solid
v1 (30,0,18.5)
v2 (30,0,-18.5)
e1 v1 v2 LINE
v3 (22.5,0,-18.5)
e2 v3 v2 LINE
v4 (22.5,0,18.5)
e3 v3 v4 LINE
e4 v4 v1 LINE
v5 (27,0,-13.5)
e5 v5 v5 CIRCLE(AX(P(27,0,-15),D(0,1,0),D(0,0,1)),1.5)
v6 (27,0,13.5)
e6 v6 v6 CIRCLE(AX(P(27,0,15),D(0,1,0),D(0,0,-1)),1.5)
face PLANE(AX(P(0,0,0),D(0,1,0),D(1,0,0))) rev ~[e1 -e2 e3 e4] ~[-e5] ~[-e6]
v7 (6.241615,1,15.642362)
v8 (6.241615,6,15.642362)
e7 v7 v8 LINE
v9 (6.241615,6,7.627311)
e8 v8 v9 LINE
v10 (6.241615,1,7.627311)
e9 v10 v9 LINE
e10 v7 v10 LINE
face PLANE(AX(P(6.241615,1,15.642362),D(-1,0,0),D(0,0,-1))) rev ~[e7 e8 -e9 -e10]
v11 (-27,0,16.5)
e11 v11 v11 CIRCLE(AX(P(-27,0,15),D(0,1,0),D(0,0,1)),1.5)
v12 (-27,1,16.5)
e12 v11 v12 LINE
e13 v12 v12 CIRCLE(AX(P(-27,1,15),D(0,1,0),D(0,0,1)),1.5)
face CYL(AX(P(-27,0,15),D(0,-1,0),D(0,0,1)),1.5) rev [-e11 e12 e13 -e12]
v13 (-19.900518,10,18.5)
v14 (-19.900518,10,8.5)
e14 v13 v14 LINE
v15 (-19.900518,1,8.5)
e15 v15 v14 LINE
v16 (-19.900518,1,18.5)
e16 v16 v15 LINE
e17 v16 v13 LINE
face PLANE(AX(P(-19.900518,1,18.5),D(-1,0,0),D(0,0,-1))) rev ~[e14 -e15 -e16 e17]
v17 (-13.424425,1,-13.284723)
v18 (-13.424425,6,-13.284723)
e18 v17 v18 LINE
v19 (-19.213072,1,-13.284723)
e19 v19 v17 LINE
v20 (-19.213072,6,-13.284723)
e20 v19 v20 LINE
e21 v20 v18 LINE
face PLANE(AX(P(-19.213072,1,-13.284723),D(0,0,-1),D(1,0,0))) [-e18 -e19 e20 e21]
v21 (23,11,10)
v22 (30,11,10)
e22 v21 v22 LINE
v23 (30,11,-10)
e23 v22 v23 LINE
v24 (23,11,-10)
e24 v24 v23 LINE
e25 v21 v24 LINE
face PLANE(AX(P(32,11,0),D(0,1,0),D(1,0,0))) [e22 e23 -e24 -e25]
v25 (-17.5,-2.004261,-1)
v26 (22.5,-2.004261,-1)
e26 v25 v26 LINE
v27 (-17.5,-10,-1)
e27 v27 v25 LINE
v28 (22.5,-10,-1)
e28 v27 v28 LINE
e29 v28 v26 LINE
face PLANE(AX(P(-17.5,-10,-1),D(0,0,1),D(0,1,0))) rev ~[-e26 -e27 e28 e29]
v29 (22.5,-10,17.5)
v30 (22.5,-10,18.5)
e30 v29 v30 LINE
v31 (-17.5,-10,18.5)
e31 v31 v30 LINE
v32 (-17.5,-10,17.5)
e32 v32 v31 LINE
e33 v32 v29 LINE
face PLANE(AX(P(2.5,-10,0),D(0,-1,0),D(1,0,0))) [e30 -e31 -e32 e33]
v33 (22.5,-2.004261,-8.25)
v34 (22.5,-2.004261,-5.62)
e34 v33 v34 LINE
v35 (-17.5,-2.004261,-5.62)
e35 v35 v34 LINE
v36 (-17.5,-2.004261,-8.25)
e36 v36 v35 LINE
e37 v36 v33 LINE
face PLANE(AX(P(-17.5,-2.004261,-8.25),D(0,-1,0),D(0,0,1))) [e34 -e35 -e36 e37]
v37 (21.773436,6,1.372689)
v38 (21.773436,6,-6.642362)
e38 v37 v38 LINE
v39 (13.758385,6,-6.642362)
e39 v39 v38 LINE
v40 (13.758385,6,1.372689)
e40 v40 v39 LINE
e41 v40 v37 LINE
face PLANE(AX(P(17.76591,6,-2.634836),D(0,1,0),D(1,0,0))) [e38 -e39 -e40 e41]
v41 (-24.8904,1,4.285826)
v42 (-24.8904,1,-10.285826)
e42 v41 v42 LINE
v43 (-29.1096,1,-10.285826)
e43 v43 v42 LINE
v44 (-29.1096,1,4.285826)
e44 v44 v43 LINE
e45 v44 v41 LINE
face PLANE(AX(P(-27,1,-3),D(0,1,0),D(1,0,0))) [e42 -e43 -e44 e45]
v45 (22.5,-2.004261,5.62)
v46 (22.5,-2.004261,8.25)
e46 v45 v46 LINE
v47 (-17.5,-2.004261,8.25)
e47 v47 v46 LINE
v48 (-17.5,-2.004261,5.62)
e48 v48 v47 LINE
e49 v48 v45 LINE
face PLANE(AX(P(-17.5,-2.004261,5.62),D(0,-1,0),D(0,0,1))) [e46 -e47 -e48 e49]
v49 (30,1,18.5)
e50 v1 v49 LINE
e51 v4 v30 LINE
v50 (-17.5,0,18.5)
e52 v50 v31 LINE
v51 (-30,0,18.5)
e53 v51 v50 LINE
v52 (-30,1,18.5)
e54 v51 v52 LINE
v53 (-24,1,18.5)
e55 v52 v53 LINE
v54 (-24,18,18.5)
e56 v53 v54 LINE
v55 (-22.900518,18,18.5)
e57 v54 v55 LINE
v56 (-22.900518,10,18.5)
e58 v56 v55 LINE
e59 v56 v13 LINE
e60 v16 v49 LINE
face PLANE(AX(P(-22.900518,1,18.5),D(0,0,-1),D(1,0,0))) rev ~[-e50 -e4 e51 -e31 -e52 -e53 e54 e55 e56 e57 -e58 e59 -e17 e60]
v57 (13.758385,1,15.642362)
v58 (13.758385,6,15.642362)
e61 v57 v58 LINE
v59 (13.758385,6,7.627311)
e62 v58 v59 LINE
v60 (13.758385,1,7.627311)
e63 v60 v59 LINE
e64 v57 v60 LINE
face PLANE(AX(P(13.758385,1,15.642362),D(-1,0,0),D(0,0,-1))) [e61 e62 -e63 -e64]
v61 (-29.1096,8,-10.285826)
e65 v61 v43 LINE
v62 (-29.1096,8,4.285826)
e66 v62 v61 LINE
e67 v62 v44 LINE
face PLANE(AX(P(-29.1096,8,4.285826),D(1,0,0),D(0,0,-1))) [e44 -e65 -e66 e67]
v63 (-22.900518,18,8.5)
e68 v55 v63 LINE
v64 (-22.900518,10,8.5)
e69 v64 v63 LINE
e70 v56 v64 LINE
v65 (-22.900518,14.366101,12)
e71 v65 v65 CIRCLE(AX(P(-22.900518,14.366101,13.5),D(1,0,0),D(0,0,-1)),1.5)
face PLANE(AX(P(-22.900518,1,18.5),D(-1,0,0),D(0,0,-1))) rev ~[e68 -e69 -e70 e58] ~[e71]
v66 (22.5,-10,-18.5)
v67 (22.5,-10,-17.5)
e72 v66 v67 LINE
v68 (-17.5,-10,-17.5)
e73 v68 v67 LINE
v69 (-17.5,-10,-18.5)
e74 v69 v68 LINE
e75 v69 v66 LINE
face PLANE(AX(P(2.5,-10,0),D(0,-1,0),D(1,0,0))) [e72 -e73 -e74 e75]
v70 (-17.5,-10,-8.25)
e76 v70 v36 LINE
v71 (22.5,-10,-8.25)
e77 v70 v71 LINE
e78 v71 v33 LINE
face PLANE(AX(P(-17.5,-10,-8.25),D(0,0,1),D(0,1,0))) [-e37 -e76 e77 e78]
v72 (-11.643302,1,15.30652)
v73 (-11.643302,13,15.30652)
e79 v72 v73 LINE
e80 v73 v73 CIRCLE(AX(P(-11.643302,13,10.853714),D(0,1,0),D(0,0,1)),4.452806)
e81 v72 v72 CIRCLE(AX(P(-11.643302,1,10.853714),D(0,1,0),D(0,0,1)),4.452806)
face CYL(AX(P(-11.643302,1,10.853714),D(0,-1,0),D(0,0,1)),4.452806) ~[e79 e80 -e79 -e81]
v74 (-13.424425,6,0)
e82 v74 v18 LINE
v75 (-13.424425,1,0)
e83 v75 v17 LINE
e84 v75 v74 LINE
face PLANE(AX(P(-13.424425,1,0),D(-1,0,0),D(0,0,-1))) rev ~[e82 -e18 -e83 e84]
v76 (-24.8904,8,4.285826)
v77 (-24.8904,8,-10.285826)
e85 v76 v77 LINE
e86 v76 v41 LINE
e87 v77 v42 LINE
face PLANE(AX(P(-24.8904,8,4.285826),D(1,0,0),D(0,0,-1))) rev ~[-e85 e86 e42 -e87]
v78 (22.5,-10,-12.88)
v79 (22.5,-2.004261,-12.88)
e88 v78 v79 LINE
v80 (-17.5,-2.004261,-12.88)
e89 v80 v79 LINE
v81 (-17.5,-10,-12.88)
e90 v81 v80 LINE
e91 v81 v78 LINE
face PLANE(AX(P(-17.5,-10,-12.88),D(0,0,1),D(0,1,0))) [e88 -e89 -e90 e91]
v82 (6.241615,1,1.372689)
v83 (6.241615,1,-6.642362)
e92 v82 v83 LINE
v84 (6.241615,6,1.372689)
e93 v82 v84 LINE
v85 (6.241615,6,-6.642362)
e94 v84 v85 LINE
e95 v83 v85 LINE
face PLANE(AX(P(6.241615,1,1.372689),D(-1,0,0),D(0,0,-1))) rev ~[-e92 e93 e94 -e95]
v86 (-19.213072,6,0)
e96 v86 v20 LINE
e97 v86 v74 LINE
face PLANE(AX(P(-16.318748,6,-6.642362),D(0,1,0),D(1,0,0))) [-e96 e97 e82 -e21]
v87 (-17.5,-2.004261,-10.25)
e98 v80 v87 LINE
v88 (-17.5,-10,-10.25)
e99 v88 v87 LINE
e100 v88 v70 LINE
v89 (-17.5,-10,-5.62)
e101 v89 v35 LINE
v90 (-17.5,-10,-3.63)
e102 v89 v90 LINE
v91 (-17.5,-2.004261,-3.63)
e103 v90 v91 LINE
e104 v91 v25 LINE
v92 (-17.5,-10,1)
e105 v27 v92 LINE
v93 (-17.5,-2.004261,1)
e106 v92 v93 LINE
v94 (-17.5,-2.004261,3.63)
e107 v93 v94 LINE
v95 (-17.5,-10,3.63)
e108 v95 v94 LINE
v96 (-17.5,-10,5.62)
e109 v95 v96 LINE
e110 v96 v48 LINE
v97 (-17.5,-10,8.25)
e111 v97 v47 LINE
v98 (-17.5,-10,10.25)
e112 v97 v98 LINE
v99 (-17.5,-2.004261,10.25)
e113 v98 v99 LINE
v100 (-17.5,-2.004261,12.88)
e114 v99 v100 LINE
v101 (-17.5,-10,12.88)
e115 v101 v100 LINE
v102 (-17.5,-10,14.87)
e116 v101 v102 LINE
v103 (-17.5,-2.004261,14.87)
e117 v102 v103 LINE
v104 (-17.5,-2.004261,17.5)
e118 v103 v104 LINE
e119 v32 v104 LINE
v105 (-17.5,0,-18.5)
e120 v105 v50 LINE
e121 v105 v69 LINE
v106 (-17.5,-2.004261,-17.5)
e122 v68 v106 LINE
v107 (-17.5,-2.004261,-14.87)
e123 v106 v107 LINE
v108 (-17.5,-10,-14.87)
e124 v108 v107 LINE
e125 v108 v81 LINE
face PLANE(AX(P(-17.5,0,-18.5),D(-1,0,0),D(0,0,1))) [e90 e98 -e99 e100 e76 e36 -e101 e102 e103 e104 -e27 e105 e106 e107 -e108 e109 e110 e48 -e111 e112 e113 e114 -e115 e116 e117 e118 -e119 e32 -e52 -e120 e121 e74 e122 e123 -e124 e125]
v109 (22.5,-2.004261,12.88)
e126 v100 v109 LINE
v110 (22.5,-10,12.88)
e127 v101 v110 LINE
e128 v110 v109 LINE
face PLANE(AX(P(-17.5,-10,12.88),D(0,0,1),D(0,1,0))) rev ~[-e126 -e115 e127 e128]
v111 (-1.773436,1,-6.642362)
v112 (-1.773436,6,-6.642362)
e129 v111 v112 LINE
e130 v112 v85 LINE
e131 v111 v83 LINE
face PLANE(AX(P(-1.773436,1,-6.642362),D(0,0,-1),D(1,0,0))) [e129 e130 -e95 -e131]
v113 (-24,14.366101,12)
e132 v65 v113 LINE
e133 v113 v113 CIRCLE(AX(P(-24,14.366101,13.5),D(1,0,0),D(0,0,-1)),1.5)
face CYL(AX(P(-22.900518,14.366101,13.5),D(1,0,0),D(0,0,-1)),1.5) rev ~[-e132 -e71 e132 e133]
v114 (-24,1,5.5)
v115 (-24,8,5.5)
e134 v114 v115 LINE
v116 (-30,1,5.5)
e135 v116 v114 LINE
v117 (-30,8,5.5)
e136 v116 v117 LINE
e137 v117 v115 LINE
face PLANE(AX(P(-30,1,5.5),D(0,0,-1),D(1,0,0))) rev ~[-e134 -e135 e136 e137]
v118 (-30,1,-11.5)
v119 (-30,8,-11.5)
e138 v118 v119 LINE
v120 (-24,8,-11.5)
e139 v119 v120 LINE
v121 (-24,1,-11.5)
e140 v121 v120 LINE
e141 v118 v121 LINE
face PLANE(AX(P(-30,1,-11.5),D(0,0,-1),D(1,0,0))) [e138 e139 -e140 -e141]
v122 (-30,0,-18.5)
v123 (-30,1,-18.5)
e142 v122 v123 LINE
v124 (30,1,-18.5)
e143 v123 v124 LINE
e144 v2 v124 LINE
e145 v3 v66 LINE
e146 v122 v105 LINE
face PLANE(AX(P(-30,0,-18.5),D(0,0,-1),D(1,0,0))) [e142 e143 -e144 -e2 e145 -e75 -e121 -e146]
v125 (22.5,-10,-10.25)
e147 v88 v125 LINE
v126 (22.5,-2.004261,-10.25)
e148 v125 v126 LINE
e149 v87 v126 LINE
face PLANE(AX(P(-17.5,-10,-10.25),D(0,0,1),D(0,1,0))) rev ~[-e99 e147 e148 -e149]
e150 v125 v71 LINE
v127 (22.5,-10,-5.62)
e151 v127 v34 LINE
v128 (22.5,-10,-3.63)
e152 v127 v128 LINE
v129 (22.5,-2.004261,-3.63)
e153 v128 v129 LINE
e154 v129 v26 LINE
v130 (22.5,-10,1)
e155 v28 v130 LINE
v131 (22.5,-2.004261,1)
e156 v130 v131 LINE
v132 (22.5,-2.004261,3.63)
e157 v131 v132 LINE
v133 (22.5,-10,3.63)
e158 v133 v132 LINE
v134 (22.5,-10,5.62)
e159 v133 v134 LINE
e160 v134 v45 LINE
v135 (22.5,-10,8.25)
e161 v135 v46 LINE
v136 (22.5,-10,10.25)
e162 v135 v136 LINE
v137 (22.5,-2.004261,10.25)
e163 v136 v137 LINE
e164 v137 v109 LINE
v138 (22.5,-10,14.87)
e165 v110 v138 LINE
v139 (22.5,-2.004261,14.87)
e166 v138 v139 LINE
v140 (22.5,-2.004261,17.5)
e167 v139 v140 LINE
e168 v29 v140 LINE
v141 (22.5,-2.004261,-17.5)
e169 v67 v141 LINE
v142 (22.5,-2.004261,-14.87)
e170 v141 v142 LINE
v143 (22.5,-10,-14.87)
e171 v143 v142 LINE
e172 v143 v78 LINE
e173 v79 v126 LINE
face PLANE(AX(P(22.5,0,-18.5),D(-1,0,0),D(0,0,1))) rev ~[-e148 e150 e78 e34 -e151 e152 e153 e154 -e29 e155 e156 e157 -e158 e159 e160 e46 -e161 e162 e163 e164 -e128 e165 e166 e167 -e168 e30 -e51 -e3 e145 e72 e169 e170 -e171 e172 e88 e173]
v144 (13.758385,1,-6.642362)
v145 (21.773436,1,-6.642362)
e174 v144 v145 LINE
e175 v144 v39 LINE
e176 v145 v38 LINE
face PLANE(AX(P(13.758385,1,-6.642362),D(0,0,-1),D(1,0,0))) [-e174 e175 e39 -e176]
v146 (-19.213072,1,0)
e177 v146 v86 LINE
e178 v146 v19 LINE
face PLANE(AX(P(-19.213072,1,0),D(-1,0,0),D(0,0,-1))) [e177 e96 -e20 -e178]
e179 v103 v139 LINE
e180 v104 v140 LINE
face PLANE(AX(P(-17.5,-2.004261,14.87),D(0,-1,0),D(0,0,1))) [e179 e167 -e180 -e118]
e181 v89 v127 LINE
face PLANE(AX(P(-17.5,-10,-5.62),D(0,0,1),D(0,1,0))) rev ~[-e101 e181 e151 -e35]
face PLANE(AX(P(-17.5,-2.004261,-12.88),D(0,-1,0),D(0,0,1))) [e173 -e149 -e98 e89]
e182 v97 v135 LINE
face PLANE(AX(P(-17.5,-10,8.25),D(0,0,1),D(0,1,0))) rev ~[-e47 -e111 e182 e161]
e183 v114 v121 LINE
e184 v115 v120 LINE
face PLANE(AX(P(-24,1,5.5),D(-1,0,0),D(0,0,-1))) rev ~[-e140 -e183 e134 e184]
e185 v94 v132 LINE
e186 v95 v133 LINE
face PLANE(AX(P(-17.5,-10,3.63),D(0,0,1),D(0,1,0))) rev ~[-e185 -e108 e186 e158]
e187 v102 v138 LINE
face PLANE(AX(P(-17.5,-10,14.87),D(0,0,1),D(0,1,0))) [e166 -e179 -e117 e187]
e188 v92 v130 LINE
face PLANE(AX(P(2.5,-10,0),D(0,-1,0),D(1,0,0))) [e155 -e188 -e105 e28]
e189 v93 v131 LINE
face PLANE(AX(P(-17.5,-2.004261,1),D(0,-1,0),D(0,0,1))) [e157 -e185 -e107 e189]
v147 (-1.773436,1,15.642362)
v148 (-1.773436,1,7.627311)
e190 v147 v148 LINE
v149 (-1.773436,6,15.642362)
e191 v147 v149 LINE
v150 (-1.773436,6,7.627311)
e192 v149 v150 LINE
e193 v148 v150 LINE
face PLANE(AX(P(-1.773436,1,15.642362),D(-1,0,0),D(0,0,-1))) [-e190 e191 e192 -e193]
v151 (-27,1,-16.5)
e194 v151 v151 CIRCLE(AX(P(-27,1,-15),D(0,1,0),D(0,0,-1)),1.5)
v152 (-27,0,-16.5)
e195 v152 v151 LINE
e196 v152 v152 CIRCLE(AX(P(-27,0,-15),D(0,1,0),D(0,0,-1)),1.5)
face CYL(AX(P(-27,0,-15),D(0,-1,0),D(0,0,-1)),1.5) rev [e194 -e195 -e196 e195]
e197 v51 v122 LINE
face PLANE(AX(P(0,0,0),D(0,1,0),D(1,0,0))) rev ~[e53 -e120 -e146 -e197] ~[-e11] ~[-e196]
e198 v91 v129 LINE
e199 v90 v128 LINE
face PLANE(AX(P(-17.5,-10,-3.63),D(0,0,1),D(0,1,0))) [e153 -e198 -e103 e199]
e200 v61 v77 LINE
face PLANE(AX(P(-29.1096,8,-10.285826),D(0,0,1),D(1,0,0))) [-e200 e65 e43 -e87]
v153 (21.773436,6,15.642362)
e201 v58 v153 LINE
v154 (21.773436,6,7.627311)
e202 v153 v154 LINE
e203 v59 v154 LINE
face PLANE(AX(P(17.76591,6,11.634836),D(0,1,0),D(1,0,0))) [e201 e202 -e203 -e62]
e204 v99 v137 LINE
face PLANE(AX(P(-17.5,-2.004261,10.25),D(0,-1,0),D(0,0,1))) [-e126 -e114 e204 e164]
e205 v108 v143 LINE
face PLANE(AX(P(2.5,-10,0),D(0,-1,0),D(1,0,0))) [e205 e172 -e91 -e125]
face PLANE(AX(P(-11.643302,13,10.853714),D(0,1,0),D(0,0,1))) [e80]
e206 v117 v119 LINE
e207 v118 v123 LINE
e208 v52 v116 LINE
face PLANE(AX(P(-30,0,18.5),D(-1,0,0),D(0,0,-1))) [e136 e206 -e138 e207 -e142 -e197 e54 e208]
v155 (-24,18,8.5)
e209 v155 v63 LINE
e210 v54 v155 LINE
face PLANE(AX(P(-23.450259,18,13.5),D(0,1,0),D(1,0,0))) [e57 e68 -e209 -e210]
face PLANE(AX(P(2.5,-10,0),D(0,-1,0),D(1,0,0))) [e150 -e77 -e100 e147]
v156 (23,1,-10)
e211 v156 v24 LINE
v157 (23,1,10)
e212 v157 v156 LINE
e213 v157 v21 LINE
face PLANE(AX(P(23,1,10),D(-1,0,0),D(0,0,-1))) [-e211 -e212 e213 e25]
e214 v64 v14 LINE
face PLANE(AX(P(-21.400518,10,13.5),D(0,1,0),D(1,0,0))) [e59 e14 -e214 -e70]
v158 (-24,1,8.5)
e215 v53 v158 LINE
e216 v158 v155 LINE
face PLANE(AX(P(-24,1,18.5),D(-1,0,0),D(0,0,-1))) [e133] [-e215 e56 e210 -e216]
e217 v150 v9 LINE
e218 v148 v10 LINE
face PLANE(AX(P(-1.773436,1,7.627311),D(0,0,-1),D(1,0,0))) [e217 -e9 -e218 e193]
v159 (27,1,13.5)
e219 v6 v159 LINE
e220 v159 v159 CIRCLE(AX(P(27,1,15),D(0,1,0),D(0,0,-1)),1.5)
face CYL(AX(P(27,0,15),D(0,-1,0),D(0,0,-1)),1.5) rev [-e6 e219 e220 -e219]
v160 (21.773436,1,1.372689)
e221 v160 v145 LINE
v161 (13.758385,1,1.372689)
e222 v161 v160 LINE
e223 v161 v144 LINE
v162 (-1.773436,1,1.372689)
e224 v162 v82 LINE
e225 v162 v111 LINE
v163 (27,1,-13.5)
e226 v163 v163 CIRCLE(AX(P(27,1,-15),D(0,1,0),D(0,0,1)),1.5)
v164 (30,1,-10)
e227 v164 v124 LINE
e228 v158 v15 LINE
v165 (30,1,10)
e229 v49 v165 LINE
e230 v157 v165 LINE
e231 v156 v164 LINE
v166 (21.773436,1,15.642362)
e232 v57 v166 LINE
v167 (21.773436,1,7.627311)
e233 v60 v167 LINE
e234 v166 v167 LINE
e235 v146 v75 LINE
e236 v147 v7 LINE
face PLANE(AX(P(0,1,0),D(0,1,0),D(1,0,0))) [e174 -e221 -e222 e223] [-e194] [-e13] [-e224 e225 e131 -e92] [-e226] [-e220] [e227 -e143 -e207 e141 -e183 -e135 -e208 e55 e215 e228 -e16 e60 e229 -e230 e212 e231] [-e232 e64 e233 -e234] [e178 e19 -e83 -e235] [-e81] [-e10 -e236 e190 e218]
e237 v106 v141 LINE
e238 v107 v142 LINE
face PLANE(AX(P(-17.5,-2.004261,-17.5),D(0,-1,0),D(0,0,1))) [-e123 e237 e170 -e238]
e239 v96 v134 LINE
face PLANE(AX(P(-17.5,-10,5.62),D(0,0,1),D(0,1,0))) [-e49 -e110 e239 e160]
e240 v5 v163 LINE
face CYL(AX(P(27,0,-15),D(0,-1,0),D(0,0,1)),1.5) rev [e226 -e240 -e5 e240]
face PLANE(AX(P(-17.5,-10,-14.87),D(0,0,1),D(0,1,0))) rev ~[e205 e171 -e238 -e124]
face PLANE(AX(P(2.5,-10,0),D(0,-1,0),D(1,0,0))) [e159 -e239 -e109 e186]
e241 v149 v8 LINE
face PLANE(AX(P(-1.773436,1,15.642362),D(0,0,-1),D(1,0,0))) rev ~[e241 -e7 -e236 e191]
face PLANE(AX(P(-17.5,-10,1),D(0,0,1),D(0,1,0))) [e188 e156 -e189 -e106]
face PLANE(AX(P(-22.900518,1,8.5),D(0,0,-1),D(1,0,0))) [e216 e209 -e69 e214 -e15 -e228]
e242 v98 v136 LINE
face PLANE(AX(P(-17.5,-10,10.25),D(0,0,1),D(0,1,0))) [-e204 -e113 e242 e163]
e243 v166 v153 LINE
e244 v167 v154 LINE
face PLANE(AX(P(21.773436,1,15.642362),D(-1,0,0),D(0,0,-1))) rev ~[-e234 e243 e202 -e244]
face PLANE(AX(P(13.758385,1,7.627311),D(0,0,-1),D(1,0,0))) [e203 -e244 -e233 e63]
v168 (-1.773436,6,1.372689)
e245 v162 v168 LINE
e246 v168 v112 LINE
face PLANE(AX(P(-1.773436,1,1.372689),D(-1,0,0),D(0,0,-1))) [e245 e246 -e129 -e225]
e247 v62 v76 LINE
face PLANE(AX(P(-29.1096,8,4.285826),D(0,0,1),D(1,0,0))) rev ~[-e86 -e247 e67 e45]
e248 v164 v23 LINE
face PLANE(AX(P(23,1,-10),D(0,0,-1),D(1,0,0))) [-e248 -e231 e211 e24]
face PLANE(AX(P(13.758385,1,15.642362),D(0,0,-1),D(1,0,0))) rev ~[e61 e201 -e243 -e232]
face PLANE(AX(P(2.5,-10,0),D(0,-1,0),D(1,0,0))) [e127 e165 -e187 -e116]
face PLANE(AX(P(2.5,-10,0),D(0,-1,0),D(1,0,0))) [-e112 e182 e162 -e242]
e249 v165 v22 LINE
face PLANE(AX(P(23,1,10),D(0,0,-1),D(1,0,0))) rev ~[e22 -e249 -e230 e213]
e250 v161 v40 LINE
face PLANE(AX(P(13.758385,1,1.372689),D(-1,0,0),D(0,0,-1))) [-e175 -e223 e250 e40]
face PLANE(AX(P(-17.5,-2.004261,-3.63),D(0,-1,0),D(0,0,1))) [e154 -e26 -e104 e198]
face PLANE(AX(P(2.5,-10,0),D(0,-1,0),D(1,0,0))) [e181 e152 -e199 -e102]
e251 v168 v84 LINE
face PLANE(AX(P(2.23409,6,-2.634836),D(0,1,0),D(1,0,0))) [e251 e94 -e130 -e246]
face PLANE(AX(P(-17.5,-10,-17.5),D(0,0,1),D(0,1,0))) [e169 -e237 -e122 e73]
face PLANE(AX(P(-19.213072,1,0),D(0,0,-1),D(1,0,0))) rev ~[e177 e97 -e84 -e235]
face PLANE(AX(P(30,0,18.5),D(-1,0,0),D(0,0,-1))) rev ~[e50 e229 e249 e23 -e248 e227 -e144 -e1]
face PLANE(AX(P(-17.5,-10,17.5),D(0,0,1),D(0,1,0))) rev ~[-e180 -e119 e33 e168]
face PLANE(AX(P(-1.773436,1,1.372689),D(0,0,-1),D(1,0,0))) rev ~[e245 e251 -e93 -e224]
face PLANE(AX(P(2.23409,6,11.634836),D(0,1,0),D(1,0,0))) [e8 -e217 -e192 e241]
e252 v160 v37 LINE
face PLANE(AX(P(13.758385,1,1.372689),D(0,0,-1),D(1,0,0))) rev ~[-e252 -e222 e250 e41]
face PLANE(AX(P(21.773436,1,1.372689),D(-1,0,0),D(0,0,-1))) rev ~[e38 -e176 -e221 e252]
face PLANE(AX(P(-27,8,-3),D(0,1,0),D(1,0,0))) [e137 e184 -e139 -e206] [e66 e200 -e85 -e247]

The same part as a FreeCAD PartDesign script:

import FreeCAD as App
import Part
import Sketcher
from FreeCAD import Vector
Q = App.Units.Quantity


def add_polygon(sketch, points):
    """Adds a closed chain of lines whose ends are joined by coincident constraints."""
    first, n = sketch.GeometryCount, len(points)
    for a, b in zip(points, points[1:] + points[:1]):
        sketch.addGeometry(Part.LineSegment(App.Vector(*a, 0), App.Vector(*b, 0)), False)
    for i in range(n):
        sketch.addConstraint(Sketcher.Constraint("Coincident", first + i, 2, first + (i + 1) % n, 1))

doc = App.newDocument("Part")
body = doc.addObject("PartDesign::Body", "Body")

sketch1 = body.newObject("Sketcher::SketchObject", "Sketch")
sketch1.AttachmentSupport = (doc.getObject("XZ_Plane"), [""])
sketch1.MapMode = "FlatFace"
add_polygon(sketch1, [(-30, -18.5), (-30, 18.5), (30, 18.5), (30, -18.5)])
sketch1.addGeometry(Part.Circle(Vector(-27, 15, 0), Vector(0, 0, 1), 1.5), False)
sketch1.addGeometry(Part.Circle(Vector(27, 15, 0), Vector(0, 0, 1), 1.5), False)
sketch1.addGeometry(Part.Circle(Vector(-27, -15, 0), Vector(0, 0, 1), 1.5), False)
sketch1.addGeometry(Part.Circle(Vector(27, -15, 0), Vector(0, 0, 1), 1.5), False)
sketch1.addConstraint(Sketcher.Constraint("Vertical", 0))
sketch1.addConstraint(Sketcher.Constraint("Horizontal", 1))
sketch1.addConstraint(Sketcher.Constraint("Vertical", 2))
sketch1.addConstraint(Sketcher.Constraint("Horizontal", 3))
sketch1.addConstraint(Sketcher.Constraint("Equal", 4, 5))
sketch1.addConstraint(Sketcher.Constraint("Equal", 5, 6))
sketch1.addConstraint(Sketcher.Constraint("Equal", 6, 7))
sketch1.addConstraint(Sketcher.Constraint("Symmetric", 5, 3, 6, 3, -1, 1))
sketch1.addConstraint(Sketcher.Constraint("Symmetric", 4, 3, 7, 3, -1, 1))
sketch1.addConstraint(Sketcher.Constraint("Symmetric", 0, 2, 2, 2, -1, 1))
sketch1.addConstraint(Sketcher.Constraint("Symmetric", 4, 3, 5, 3, -2))
sketch1.addConstraint(Sketcher.Constraint("Diameter", 4, Q("3 mm")))
sketch1.addConstraint(Sketcher.Constraint("DistanceX", 1, 1, 1, 2, Q("60 mm")))
sketch1.addConstraint(Sketcher.Constraint("DistanceY", 0, 1, 0, 2, Q("37 mm")))
sketch1.addConstraint(Sketcher.Constraint("DistanceX", 4, 3, -1, 1, Q("27 mm")))
sketch1.addConstraint(Sketcher.Constraint("DistanceY", -1, 1, 4, 3, Q("15 mm")))
pad1 = body.newObject("PartDesign::Pad", "Pad")
pad1.Profile = sketch1
pad1.Length = 1
pad1.Reversed = True

sketch2 = body.newObject("Sketcher::SketchObject", "Sketch001")
sketch2.AttachmentSupport = (doc.getObject("XZ_Plane"), [""])
sketch2.MapMode = "FlatFace"
sketch2.AttachmentOffset = App.Placement(Vector(0, 0, -1), App.Rotation())
add_polygon(sketch2, [(23, -10), (23, 10), (41, 10), (41, -10)])
sketch2.addConstraint(Sketcher.Constraint("Vertical", 0))
sketch2.addConstraint(Sketcher.Constraint("Horizontal", 1))
sketch2.addConstraint(Sketcher.Constraint("Vertical", 2))
sketch2.addConstraint(Sketcher.Constraint("Horizontal", 3))
sketch2.addConstraint(Sketcher.Constraint("DistanceX", 1, 1, 1, 2, Q("18 mm")))
sketch2.addConstraint(Sketcher.Constraint("DistanceY", 0, 1, 0, 2, Q("20 mm")))
sketch2.addConstraint(Sketcher.Constraint("DistanceX", -1, 1, 0, 2, Q("23 mm")))
sketch2.addConstraint(Sketcher.Constraint("DistanceY", -1, 1, 0, 2, Q("10 mm")))
pad2 = body.newObject("PartDesign::Pad", "Pad001")
pad2.Profile = sketch2
pad2.Length = 10
pad2.Reversed = True

sketch3 = body.newObject("Sketcher::SketchObject", "Sketch002")
sketch3.AttachmentSupport = (doc.getObject("XZ_Plane"), [""])
sketch3.MapMode = "FlatFace"
sketch3.AttachmentOffset = App.Placement(Vector(0, 0, -11), App.Rotation())
sketch3.addGeometry(Part.Circle(Vector(38.562083, -7.5, 0), Vector(0, 0, 1), 1), False)
sketch3.addGeometry(Part.Circle(Vector(38.562083, -2.5, 0), Vector(0, 0, 1), 1), False)
sketch3.addGeometry(Part.Circle(Vector(38.562083, 7.5, 0), Vector(0, 0, 1), 1), False)
sketch3.addGeometry(Part.Circle(Vector(38.562083, 2.5, 0), Vector(0, 0, 1), 1), False)
sketch3.addConstraint(Sketcher.Constraint("Equal", 0, 1))
sketch3.addConstraint(Sketcher.Constraint("Equal", 1, 2))
sketch3.addConstraint(Sketcher.Constraint("Equal", 2, 3))
sketch3.addConstraint(Sketcher.Constraint("Symmetric", 0, 3, 2, 3, -1))
sketch3.addConstraint(Sketcher.Constraint("Symmetric", 1, 3, 3, 3, -1))
sketch3.addConstraint(Sketcher.Constraint("Vertical", 0, 3, 1, 3))
sketch3.addConstraint(Sketcher.Constraint("Diameter", 0, Q("2 mm")))
sketch3.addConstraint(Sketcher.Constraint("DistanceY", 0, 3, 1, 3, Q("5 mm")))
sketch3.addConstraint(Sketcher.Constraint("DistanceY", 1, 3, 2, 3, Q("10 mm")))
sketch3.addConstraint(Sketcher.Constraint("DistanceX", -1, 1, 0, 3, Q("38.562083 mm")))
pocket1 = body.newObject("PartDesign::Pocket", "Pocket")
pocket1.Profile = sketch3
pocket1.Length = 1
pocket1.Reversed = True

sketch4 = body.newObject("Sketcher::SketchObject", "Sketch003")
sketch4.AttachmentSupport = (doc.getObject("YZ_Plane"), [""])
sketch4.MapMode = "FlatFace"
sketch4.AttachmentOffset = App.Placement(Vector(0, 0, 41), App.Rotation())
add_polygon(sketch4, [(5.64503, 3.444655), (1.816244, 3.444655), (1.816244, 1.555345), (5.64503, 1.555345)])
add_polygon(sketch4, [(5.64503, 8.444655), (1.816244, 8.444655), (1.816244, 6.555345), (5.64503, 6.555345)])
add_polygon(sketch4, [(5.64503, -1.555345), (1.816244, -1.555345), (1.816244, -3.444655), (5.64503, -3.444655)])
add_polygon(sketch4, [(5.64503, -6.555345), (1.816244, -6.555345), (1.816244, -8.444655), (5.64503, -8.444655)])
sketch4.addConstraint(Sketcher.Constraint("Horizontal", 0))
sketch4.addConstraint(Sketcher.Constraint("Vertical", 1))
sketch4.addConstraint(Sketcher.Constraint("Horizontal", 2))
sketch4.addConstraint(Sketcher.Constraint("Vertical", 3))
sketch4.addConstraint(Sketcher.Constraint("Horizontal", 4))
sketch4.addConstraint(Sketcher.Constraint("Vertical", 5))
sketch4.addConstraint(Sketcher.Constraint("Horizontal", 6))
sketch4.addConstraint(Sketcher.Constraint("Vertical", 7))
sketch4.addConstraint(Sketcher.Constraint("Horizontal", 8))
sketch4.addConstraint(Sketcher.Constraint("Vertical", 9))
sketch4.addConstraint(Sketcher.Constraint("Horizontal", 10))
sketch4.addConstraint(Sketcher.Constraint("Vertical", 11))
sketch4.addConstraint(Sketcher.Constraint("Horizontal", 12))
sketch4.addConstraint(Sketcher.Constraint("Vertical", 13))
sketch4.addConstraint(Sketcher.Constraint("Horizontal", 14))
sketch4.addConstraint(Sketcher.Constraint("Vertical", 15))
sketch4.addConstraint(Sketcher.Constraint("Symmetric", 1, 2, 8, 2, -1))
sketch4.addConstraint(Sketcher.Constraint("Symmetric", 3, 2, 10, 2, -1))
sketch4.addConstraint(Sketcher.Constraint("Symmetric", 5, 2, 12, 2, -1))
sketch4.addConstraint(Sketcher.Constraint("Symmetric", 7, 2, 14, 2, -1))
sketch4.addConstraint(Sketcher.Constraint("Vertical", 1, 2, 4, 2))
sketch4.addConstraint(Sketcher.Constraint("Vertical", 3, 2, 6, 2))
sketch4.addConstraint(Sketcher.Constraint("Equal", 3, 5))
sketch4.addConstraint(Sketcher.Constraint("DistanceY", 0, 2, 4, 2, Q("5 mm")))
sketch4.addConstraint(Sketcher.Constraint("DistanceY", 8, 2, 0, 2, Q("5 mm")))
sketch4.addConstraint(Sketcher.Constraint("DistanceY", 1, 2, 1, 1, Q("1.889309 mm")))
sketch4.addConstraint(Sketcher.Constraint("DistanceX", 0, 2, 0, 1, Q("3.828786 mm")))
sketch4.addConstraint(Sketcher.Constraint("DistanceX", -1, 1, 2, 2, Q("5.64503 mm")))
pocket2 = body.newObject("PartDesign::Pocket", "Pocket001")
pocket2.Profile = sketch4
pocket2.Length = 5

sketch5 = body.newObject("Sketcher::SketchObject", "Sketch004")
sketch5.AttachmentSupport = (doc.getObject("XZ_Plane"), [""])
sketch5.MapMode = "FlatFace"
sketch5.AttachmentOffset = App.Placement(Vector(0, 0, -1), App.Rotation())
add_polygon(sketch5, [(-30, -11.5), (-30, 5.5), (-24, 5.5), (-24, -11.5)])
sketch5.addConstraint(Sketcher.Constraint("Vertical", 0))
sketch5.addConstraint(Sketcher.Constraint("Horizontal", 1))
sketch5.addConstraint(Sketcher.Constraint("Vertical", 2))
sketch5.addConstraint(Sketcher.Constraint("Horizontal", 3))
sketch5.addConstraint(Sketcher.Constraint("DistanceX", 1, 1, 1, 2, Q("6 mm")))
sketch5.addConstraint(Sketcher.Constraint("DistanceY", 0, 1, 0, 2, Q("17 mm")))
sketch5.addConstraint(Sketcher.Constraint("DistanceX", 0, 2, -1, 1, Q("30 mm")))
sketch5.addConstraint(Sketcher.Constraint("DistanceY", -1, 1, 0, 2, Q("5.5 mm")))
pad3 = body.newObject("PartDesign::Pad", "Pad002")
pad3.Profile = sketch5
pad3.Length = 7
pad3.Reversed = True

sketch6 = body.newObject("Sketcher::SketchObject", "Sketch005")
sketch6.AttachmentSupport = (doc.getObject("XZ_Plane"), [""])
sketch6.MapMode = "FlatFace"
sketch6.AttachmentOffset = App.Placement(Vector(0, 0, -8), App.Rotation())
add_polygon(sketch6, [(-29.1096, -10.285826), (-29.1096, 4.285826), (-24.8904, 4.285826), (-24.8904, -10.285826)])
sketch6.addConstraint(Sketcher.Constraint("Vertical", 0))
sketch6.addConstraint(Sketcher.Constraint("Horizontal", 1))
sketch6.addConstraint(Sketcher.Constraint("Vertical", 2))
sketch6.addConstraint(Sketcher.Constraint("Horizontal", 3))
sketch6.addConstraint(Sketcher.Constraint("DistanceX", 1, 1, 1, 2, Q("4.219201 mm")))
sketch6.addConstraint(Sketcher.Constraint("DistanceY", 0, 1, 0, 2, Q("14.571651 mm")))
sketch6.addConstraint(Sketcher.Constraint("DistanceX", 0, 2, -1, 1, Q("29.1096 mm")))
sketch6.addConstraint(Sketcher.Constraint("DistanceY", -1, 1, 0, 2, Q("4.285826 mm")))
pocket3 = body.newObject("PartDesign::Pocket", "Pocket002")
pocket3.Profile = sketch6
pocket3.Length = 7
pocket3.Reversed = True

sketch7 = body.newObject("Sketcher::SketchObject", "Sketch006")
sketch7.AttachmentSupport = (doc.getObject("XZ_Plane"), [""])
sketch7.MapMode = "FlatFace"
sketch7.AttachmentOffset = App.Placement(Vector(0, 0, -1), App.Rotation())
add_polygon(sketch7, [(-24, 8.5), (-24, 18.5), (-22.900518, 18.5), (-22.900518, 8.5)])
sketch7.addConstraint(Sketcher.Constraint("Vertical", 0))
sketch7.addConstraint(Sketcher.Constraint("Horizontal", 1))
sketch7.addConstraint(Sketcher.Constraint("Vertical", 2))
sketch7.addConstraint(Sketcher.Constraint("Horizontal", 3))
sketch7.addConstraint(Sketcher.Constraint("DistanceY", 0, 1, 0, 2, Q("10 mm")))
sketch7.addConstraint(Sketcher.Constraint("DistanceX", 0, 2, -1, 1, Q("24 mm")))
sketch7.addConstraint(Sketcher.Constraint("DistanceY", -1, 1, 0, 2, Q("18.5 mm")))
sketch7.addConstraint(Sketcher.Constraint("DistanceX", 1, 1, 1, 2, Q("1.099482 mm")))
pad4 = body.newObject("PartDesign::Pad", "Pad003")
pad4.Profile = sketch7
pad4.Length = 17
pad4.Reversed = True

sketch8 = body.newObject("Sketcher::SketchObject", "Sketch007")
sketch8.AttachmentSupport = (doc.getObject("XZ_Plane"), [""])
sketch8.MapMode = "FlatFace"
sketch8.AttachmentOffset = App.Placement(Vector(0, 0, -1), App.Rotation())
add_polygon(sketch8, [(-22.900518, 8.5), (-22.900518, 18.5), (-19.900518, 18.5), (-19.900518, 8.5)])
sketch8.addConstraint(Sketcher.Constraint("Vertical", 0))
sketch8.addConstraint(Sketcher.Constraint("Horizontal", 1))
sketch8.addConstraint(Sketcher.Constraint("Vertical", 2))
sketch8.addConstraint(Sketcher.Constraint("Horizontal", 3))
sketch8.addConstraint(Sketcher.Constraint("DistanceX", 1, 1, 1, 2, Q("3 mm")))
sketch8.addConstraint(Sketcher.Constraint("DistanceY", 0, 1, 0, 2, Q("10 mm")))
sketch8.addConstraint(Sketcher.Constraint("DistanceY", -1, 1, 0, 2, Q("18.5 mm")))
sketch8.addConstraint(Sketcher.Constraint("DistanceX", 0, 2, -1, 1, Q("22.900518 mm")))
pad5 = body.newObject("PartDesign::Pad", "Pad004")
pad5.Profile = sketch8
pad5.Length = 9
pad5.Reversed = True

sketch9 = body.newObject("Sketcher::SketchObject", "Sketch008")
sketch9.AttachmentSupport = (doc.getObject("YZ_Plane"), [""])
sketch9.MapMode = "FlatFace"
sketch9.AttachmentOffset = App.Placement(Vector(0, 0, -22.900518), App.Rotation())
sketch9.addGeometry(Part.Circle(Vector(14.366101, 13.5, 0), Vector(0, 0, 1), 1.5), False)
sketch9.addConstraint(Sketcher.Constraint("Diameter", 0, Q("3 mm")))
sketch9.addConstraint(Sketcher.Constraint("DistanceY", -1, 1, 0, 3, Q("13.5 mm")))
sketch9.addConstraint(Sketcher.Constraint("DistanceX", -1, 1, 0, 3, Q("14.366101 mm")))
pocket4 = body.newObject("PartDesign::Pocket", "Pocket003")
pocket4.Profile = sketch9
pocket4.Length = 9

sketch10 = body.newObject("Sketcher::SketchObject", "Sketch009")
sketch10.AttachmentSupport = (doc.getObject("XZ_Plane"), [""])
sketch10.MapMode = "FlatFace"
sketch10.AttachmentOffset = App.Placement(Vector(0, 0, -1), App.Rotation())
add_polygon(sketch10, [(-1.773436, -6.642362), (-1.773436, 1.372689), (6.241615, 1.372689), (6.241615, -6.642362)])
add_polygon(sketch10, [(-19.213072, -13.284723), (-19.213072, 0), (-13.424425, 0), (-13.424425, -13.284723)])
add_polygon(sketch10, [(13.758385, -6.642362), (13.758385, 1.372689), (21.773436, 1.372689), (21.773436, -6.642362)])
add_polygon(sketch10, [(13.758385, 7.627311), (13.758385, 15.642362), (21.773436, 15.642362), (21.773436, 7.627311)])
add_polygon(sketch10, [(-1.773436, 7.627311), (-1.773436, 15.642362), (6.241615, 15.642362), (6.241615, 7.627311)])
sketch10.addConstraint(Sketcher.Constraint("Vertical", 0))
sketch10.addConstraint(Sketcher.Constraint("Horizontal", 1))
sketch10.addConstraint(Sketcher.Constraint("Vertical", 2))
sketch10.addConstraint(Sketcher.Constraint("Horizontal", 3))
sketch10.addConstraint(Sketcher.Constraint("Vertical", 4))
sketch10.addConstraint(Sketcher.Constraint("Horizontal", 5))
sketch10.addConstraint(Sketcher.Constraint("Vertical", 6))
sketch10.addConstraint(Sketcher.Constraint("Horizontal", 7))
sketch10.addConstraint(Sketcher.Constraint("Vertical", 8))
sketch10.addConstraint(Sketcher.Constraint("Horizontal", 9))
sketch10.addConstraint(Sketcher.Constraint("Vertical", 10))
sketch10.addConstraint(Sketcher.Constraint("Horizontal", 11))
sketch10.addConstraint(Sketcher.Constraint("Vertical", 12))
sketch10.addConstraint(Sketcher.Constraint("Horizontal", 13))
sketch10.addConstraint(Sketcher.Constraint("Vertical", 14))
sketch10.addConstraint(Sketcher.Constraint("Horizontal", 15))
sketch10.addConstraint(Sketcher.Constraint("Vertical", 16))
sketch10.addConstraint(Sketcher.Constraint("Horizontal", 17))
sketch10.addConstraint(Sketcher.Constraint("Vertical", 18))
sketch10.addConstraint(Sketcher.Constraint("Horizontal", 19))
sketch10.addConstraint(Sketcher.Constraint("PointOnObject", 4, 2, -1))
sketch10.addConstraint(Sketcher.Constraint("Horizontal", 1, 2, 8, 2))
sketch10.addConstraint(Sketcher.Constraint("Horizontal", 3, 2, 10, 2))
sketch10.addConstraint(Sketcher.Constraint("Horizontal", 13, 2, 16, 2))
sketch10.addConstraint(Sketcher.Constraint("Horizontal", 15, 2, 18, 2))
sketch10.addConstraint(Sketcher.Constraint("Vertical", 11, 2, 12, 2))
sketch10.addConstraint(Sketcher.Constraint("Vertical", 10, 2, 13, 2))
sketch10.addConstraint(Sketcher.Constraint("Vertical", 3, 2, 16, 2))
sketch10.addConstraint(Sketcher.Constraint("Vertical", 2, 2, 17, 2))
sketch10.addConstraint(Sketcher.Constraint("Equal", 3, 9))
sketch10.addConstraint(Sketcher.Constraint("Equal", 19, 0))
sketch10.addConstraint(Sketcher.Constraint("Equal", 10, 12))
sketch10.addConstraint(Sketcher.Constraint("DistanceX", 1, 1, 1, 2, Q("8.01505 mm")))
sketch10.addConstraint(Sketcher.Constraint("DistanceX", 5, 1, 5, 2, Q("5.788648 mm")))
sketch10.addConstraint(Sketcher.Constraint("DistanceY", 4, 1, 4, 2, Q("13.284723 mm")))
sketch10.addConstraint(Sketcher.Constraint("DistanceY", -1, 1, 0, 2, Q("1.372689 mm")))
sketch10.addConstraint(Sketcher.Constraint("DistanceY", -1, 1, 12, 2, Q("15.642362 mm")))
sketch10.addConstraint(Sketcher.Constraint("DistanceX", 5, 2, 0, 2, Q("11.650989 mm")))
sketch10.addConstraint(Sketcher.Constraint("DistanceX", 1, 2, 8, 2, Q("7.51677 mm")))
sketch10.addConstraint(Sketcher.Constraint("DistanceX", 0, 2, -1, 1, Q("1.773436 mm")))
pad6 = body.newObject("PartDesign::Pad", "Pad005")
pad6.Profile = sketch10
pad6.Length = 5
pad6.Reversed = True

sketch11 = body.newObject("Sketcher::SketchObject", "Sketch010")
sketch11.AttachmentSupport = (doc.getObject("XZ_Plane"), [""])
sketch11.MapMode = "FlatFace"
sketch11.AttachmentOffset = App.Placement(Vector(0, 0, -1), App.Rotation())
sketch11.addGeometry(Part.Circle(Vector(-11.643302, 10.853714, 0), Vector(0, 0, 1), 4.452806), False)
sketch11.addConstraint(Sketcher.Constraint("Diameter", 0, Q("8.905612 mm")))
sketch11.addConstraint(Sketcher.Constraint("DistanceX", 0, 3, -1, 1, Q("11.643302 mm")))
sketch11.addConstraint(Sketcher.Constraint("DistanceY", -1, 1, 0, 3, Q("10.853714 mm")))
pad7 = body.newObject("PartDesign::Pad", "Pad006")
pad7.Profile = sketch11
pad7.Length = 12
pad7.Reversed = True

sketch12 = body.newObject("Sketcher::SketchObject", "Sketch011")
sketch12.AttachmentSupport = (doc.getObject("XZ_Plane"), [""])
sketch12.MapMode = "FlatFace"
add_polygon(sketch12, [(-17.5, 18.5), (-17.5, -18.5), (22.5, -18.5), (22.5, 18.5)])
sketch12.addConstraint(Sketcher.Constraint("Vertical", 0))
sketch12.addConstraint(Sketcher.Constraint("Horizontal", 1))
sketch12.addConstraint(Sketcher.Constraint("Vertical", 2))
sketch12.addConstraint(Sketcher.Constraint("Horizontal", 3))
sketch12.addConstraint(Sketcher.Constraint("DistanceX", 1, 1, 1, 2, Q("40 mm")))
sketch12.addConstraint(Sketcher.Constraint("DistanceY", 0, 2, 0, 1, Q("37 mm")))
sketch12.addConstraint(Sketcher.Constraint("DistanceX", 0, 2, -1, 1, Q("17.5 mm")))
sketch12.addConstraint(Sketcher.Constraint("DistanceY", 0, 2, -1, 1, Q("18.5 mm")))
pad8 = body.newObject("PartDesign::Pad", "Pad007")
pad8.Profile = sketch12
pad8.Length = 10

sketch13 = body.newObject("Sketcher::SketchObject", "Sketch012")
sketch13.AttachmentSupport = (doc.getObject("YZ_Plane"), [""])
sketch13.MapMode = "FlatFace"
sketch13.AttachmentOffset = App.Placement(Vector(0, 0, -17.5), App.Rotation())
add_polygon(sketch13, [(-2.004261, -17.5), (-10, -17.5), (-10, -14.87), (-2.004261, -14.87)])
add_polygon(sketch13, [(-2.004261, -12.88), (-10, -12.88), (-10, -10.25), (-2.004261, -10.25)])
add_polygon(sketch13, [(-2.004261, -8.25), (-10, -8.25), (-10, -5.62), (-2.004261, -5.62)])
add_polygon(sketch13, [(-2.004261, -3.63), (-10, -3.63), (-10, -1), (-2.004261, -1)])
add_polygon(sketch13, [(-2.004261, 1), (-10, 1), (-10, 3.63), (-2.004261, 3.63)])
add_polygon(sketch13, [(-2.004261, 5.62), (-10, 5.62), (-10, 8.25), (-2.004261, 8.25)])
add_polygon(sketch13, [(-2.004261, 10.25), (-10, 10.25), (-10, 12.88), (-2.004261, 12.88)])
add_polygon(sketch13, [(-2.004261, 14.87), (-10, 14.87), (-10, 17.5), (-2.004261, 17.5)])
sketch13.addConstraint(Sketcher.Constraint("Horizontal", 0))
sketch13.addConstraint(Sketcher.Constraint("Vertical", 1))
sketch13.addConstraint(Sketcher.Constraint("Horizontal", 2))
sketch13.addConstraint(Sketcher.Constraint("Vertical", 3))
sketch13.addConstraint(Sketcher.Constraint("Horizontal", 4))
sketch13.addConstraint(Sketcher.Constraint("Vertical", 5))
sketch13.addConstraint(Sketcher.Constraint("Horizontal", 6))
sketch13.addConstraint(Sketcher.Constraint("Vertical", 7))
sketch13.addConstraint(Sketcher.Constraint("Horizontal", 8))
sketch13.addConstraint(Sketcher.Constraint("Vertical", 9))
sketch13.addConstraint(Sketcher.Constraint("Horizontal", 10))
sketch13.addConstraint(Sketcher.Constraint("Vertical", 11))
sketch13.addConstraint(Sketcher.Constraint("Horizontal", 12))
sketch13.addConstraint(Sketcher.Constraint("Vertical", 13))
sketch13.addConstraint(Sketcher.Constraint("Horizontal", 14))
sketch13.addConstraint(Sketcher.Constraint("Vertical", 15))
sketch13.addConstraint(Sketcher.Constraint("Horizontal", 16))
sketch13.addConstraint(Sketcher.Constraint("Vertical", 17))
sketch13.addConstraint(Sketcher.Constraint("Horizontal", 18))
sketch13.addConstraint(Sketcher.Constraint("Vertical", 19))
sketch13.addConstraint(Sketcher.Constraint("Horizontal", 20))
sketch13.addConstraint(Sketcher.Constraint("Vertical", 21))
sketch13.addConstraint(Sketcher.Constraint("Horizontal", 22))
sketch13.addConstraint(Sketcher.Constraint("Vertical", 23))
sketch13.addConstraint(Sketcher.Constraint("Horizontal", 24))
sketch13.addConstraint(Sketcher.Constraint("Vertical", 25))
sketch13.addConstraint(Sketcher.Constraint("Horizontal", 26))
sketch13.addConstraint(Sketcher.Constraint("Vertical", 27))
sketch13.addConstraint(Sketcher.Constraint("Horizontal", 28))
sketch13.addConstraint(Sketcher.Constraint("Vertical", 29))
sketch13.addConstraint(Sketcher.Constraint("Horizontal", 30))
sketch13.addConstraint(Sketcher.Constraint("Vertical", 31))
sketch13.addConstraint(Sketcher.Constraint("Symmetric", 13, 2, 16, 2, -1))
sketch13.addConstraint(Sketcher.Constraint("Symmetric", 15, 2, 18, 2, -1))
sketch13.addConstraint(Sketcher.Constraint("Symmetric", 9, 2, 20, 2, -1))
sketch13.addConstraint(Sketcher.Constraint("Symmetric", 11, 2, 22, 2, -1))
sketch13.addConstraint(Sketcher.Constraint("Symmetric", 5, 2, 24, 2, -1))
sketch13.addConstraint(Sketcher.Constraint("Symmetric", 7, 2, 26, 2, -1))
sketch13.addConstraint(Sketcher.Constraint("Symmetric", 1, 2, 28, 2, -1))
sketch13.addConstraint(Sketcher.Constraint("Symmetric", 3, 2, 30, 2, -1))
sketch13.addConstraint(Sketcher.Constraint("Vertical", 1, 2, 4, 2))
sketch13.addConstraint(Sketcher.Constraint("Vertical", 3, 2, 6, 2))
sketch13.addConstraint(Sketcher.Constraint("Vertical", 5, 2, 8, 2))
sketch13.addConstraint(Sketcher.Constraint("Vertical", 7, 2, 10, 2))
sketch13.addConstraint(Sketcher.Constraint("Vertical", 9, 2, 12, 2))
sketch13.addConstraint(Sketcher.Constraint("Vertical", 11, 2, 14, 2))
sketch13.addConstraint(Sketcher.Constraint("Equal", 3, 5))
sketch13.addConstraint(Sketcher.Constraint("Equal", 7, 9))
sketch13.addConstraint(Sketcher.Constraint("Equal", 11, 13))
sketch13.addConstraint(Sketcher.Constraint("DistanceX", 0, 2, -1, 1, Q("10 mm")))
sketch13.addConstraint(Sketcher.Constraint("DistanceY", 13, 2, -1, 1, Q("1 mm")))
sketch13.addConstraint(Sketcher.Constraint("DistanceY", 5, 2, 8, 2, Q("2 mm")))
sketch13.addConstraint(Sketcher.Constraint("DistanceY", 1, 1, 1, 2, Q("2.63 mm")))
sketch13.addConstraint(Sketcher.Constraint("DistanceY", 0, 2, -1, 1, Q("17.5 mm")))
sketch13.addConstraint(Sketcher.Constraint("DistanceY", 4, 2, -1, 1, Q("12.88 mm")))
sketch13.addConstraint(Sketcher.Constraint("DistanceX", 0, 2, 0, 1, Q("7.995739 mm")))
pocket5 = body.newObject("PartDesign::Pocket", "Pocket004")
pocket5.Profile = sketch13
pocket5.Type = "ThroughAll"
pocket5.Reversed = True

sketch14 = body.newObject("Sketcher::SketchObject", "Sketch013")
sketch14.AttachmentSupport = (doc.getObject("XZ_Plane"), [""])
sketch14.MapMode = "FlatFace"
add_polygon(sketch14, [(30, 10), (30, -10), (41, -10), (41, 10)])
sketch14.addConstraint(Sketcher.Constraint("Vertical", 0))
sketch14.addConstraint(Sketcher.Constraint("Horizontal", 1))
sketch14.addConstraint(Sketcher.Constraint("Vertical", 2))
sketch14.addConstraint(Sketcher.Constraint("Horizontal", 3))
sketch14.addConstraint(Sketcher.Constraint("DistanceX", 1, 1, 1, 2, Q("11 mm")))
sketch14.addConstraint(Sketcher.Constraint("DistanceY", 0, 2, 0, 1, Q("20 mm")))
sketch14.addConstraint(Sketcher.Constraint("DistanceX", -1, 1, 0, 2, Q("30 mm")))
sketch14.addConstraint(Sketcher.Constraint("DistanceY", 0, 2, -1, 1, Q("10 mm")))
pocket6 = body.newObject("PartDesign::Pocket", "Pocket005")
pocket6.Profile = sketch14
pocket6.Type = "ThroughAll"

doc.recompute()
